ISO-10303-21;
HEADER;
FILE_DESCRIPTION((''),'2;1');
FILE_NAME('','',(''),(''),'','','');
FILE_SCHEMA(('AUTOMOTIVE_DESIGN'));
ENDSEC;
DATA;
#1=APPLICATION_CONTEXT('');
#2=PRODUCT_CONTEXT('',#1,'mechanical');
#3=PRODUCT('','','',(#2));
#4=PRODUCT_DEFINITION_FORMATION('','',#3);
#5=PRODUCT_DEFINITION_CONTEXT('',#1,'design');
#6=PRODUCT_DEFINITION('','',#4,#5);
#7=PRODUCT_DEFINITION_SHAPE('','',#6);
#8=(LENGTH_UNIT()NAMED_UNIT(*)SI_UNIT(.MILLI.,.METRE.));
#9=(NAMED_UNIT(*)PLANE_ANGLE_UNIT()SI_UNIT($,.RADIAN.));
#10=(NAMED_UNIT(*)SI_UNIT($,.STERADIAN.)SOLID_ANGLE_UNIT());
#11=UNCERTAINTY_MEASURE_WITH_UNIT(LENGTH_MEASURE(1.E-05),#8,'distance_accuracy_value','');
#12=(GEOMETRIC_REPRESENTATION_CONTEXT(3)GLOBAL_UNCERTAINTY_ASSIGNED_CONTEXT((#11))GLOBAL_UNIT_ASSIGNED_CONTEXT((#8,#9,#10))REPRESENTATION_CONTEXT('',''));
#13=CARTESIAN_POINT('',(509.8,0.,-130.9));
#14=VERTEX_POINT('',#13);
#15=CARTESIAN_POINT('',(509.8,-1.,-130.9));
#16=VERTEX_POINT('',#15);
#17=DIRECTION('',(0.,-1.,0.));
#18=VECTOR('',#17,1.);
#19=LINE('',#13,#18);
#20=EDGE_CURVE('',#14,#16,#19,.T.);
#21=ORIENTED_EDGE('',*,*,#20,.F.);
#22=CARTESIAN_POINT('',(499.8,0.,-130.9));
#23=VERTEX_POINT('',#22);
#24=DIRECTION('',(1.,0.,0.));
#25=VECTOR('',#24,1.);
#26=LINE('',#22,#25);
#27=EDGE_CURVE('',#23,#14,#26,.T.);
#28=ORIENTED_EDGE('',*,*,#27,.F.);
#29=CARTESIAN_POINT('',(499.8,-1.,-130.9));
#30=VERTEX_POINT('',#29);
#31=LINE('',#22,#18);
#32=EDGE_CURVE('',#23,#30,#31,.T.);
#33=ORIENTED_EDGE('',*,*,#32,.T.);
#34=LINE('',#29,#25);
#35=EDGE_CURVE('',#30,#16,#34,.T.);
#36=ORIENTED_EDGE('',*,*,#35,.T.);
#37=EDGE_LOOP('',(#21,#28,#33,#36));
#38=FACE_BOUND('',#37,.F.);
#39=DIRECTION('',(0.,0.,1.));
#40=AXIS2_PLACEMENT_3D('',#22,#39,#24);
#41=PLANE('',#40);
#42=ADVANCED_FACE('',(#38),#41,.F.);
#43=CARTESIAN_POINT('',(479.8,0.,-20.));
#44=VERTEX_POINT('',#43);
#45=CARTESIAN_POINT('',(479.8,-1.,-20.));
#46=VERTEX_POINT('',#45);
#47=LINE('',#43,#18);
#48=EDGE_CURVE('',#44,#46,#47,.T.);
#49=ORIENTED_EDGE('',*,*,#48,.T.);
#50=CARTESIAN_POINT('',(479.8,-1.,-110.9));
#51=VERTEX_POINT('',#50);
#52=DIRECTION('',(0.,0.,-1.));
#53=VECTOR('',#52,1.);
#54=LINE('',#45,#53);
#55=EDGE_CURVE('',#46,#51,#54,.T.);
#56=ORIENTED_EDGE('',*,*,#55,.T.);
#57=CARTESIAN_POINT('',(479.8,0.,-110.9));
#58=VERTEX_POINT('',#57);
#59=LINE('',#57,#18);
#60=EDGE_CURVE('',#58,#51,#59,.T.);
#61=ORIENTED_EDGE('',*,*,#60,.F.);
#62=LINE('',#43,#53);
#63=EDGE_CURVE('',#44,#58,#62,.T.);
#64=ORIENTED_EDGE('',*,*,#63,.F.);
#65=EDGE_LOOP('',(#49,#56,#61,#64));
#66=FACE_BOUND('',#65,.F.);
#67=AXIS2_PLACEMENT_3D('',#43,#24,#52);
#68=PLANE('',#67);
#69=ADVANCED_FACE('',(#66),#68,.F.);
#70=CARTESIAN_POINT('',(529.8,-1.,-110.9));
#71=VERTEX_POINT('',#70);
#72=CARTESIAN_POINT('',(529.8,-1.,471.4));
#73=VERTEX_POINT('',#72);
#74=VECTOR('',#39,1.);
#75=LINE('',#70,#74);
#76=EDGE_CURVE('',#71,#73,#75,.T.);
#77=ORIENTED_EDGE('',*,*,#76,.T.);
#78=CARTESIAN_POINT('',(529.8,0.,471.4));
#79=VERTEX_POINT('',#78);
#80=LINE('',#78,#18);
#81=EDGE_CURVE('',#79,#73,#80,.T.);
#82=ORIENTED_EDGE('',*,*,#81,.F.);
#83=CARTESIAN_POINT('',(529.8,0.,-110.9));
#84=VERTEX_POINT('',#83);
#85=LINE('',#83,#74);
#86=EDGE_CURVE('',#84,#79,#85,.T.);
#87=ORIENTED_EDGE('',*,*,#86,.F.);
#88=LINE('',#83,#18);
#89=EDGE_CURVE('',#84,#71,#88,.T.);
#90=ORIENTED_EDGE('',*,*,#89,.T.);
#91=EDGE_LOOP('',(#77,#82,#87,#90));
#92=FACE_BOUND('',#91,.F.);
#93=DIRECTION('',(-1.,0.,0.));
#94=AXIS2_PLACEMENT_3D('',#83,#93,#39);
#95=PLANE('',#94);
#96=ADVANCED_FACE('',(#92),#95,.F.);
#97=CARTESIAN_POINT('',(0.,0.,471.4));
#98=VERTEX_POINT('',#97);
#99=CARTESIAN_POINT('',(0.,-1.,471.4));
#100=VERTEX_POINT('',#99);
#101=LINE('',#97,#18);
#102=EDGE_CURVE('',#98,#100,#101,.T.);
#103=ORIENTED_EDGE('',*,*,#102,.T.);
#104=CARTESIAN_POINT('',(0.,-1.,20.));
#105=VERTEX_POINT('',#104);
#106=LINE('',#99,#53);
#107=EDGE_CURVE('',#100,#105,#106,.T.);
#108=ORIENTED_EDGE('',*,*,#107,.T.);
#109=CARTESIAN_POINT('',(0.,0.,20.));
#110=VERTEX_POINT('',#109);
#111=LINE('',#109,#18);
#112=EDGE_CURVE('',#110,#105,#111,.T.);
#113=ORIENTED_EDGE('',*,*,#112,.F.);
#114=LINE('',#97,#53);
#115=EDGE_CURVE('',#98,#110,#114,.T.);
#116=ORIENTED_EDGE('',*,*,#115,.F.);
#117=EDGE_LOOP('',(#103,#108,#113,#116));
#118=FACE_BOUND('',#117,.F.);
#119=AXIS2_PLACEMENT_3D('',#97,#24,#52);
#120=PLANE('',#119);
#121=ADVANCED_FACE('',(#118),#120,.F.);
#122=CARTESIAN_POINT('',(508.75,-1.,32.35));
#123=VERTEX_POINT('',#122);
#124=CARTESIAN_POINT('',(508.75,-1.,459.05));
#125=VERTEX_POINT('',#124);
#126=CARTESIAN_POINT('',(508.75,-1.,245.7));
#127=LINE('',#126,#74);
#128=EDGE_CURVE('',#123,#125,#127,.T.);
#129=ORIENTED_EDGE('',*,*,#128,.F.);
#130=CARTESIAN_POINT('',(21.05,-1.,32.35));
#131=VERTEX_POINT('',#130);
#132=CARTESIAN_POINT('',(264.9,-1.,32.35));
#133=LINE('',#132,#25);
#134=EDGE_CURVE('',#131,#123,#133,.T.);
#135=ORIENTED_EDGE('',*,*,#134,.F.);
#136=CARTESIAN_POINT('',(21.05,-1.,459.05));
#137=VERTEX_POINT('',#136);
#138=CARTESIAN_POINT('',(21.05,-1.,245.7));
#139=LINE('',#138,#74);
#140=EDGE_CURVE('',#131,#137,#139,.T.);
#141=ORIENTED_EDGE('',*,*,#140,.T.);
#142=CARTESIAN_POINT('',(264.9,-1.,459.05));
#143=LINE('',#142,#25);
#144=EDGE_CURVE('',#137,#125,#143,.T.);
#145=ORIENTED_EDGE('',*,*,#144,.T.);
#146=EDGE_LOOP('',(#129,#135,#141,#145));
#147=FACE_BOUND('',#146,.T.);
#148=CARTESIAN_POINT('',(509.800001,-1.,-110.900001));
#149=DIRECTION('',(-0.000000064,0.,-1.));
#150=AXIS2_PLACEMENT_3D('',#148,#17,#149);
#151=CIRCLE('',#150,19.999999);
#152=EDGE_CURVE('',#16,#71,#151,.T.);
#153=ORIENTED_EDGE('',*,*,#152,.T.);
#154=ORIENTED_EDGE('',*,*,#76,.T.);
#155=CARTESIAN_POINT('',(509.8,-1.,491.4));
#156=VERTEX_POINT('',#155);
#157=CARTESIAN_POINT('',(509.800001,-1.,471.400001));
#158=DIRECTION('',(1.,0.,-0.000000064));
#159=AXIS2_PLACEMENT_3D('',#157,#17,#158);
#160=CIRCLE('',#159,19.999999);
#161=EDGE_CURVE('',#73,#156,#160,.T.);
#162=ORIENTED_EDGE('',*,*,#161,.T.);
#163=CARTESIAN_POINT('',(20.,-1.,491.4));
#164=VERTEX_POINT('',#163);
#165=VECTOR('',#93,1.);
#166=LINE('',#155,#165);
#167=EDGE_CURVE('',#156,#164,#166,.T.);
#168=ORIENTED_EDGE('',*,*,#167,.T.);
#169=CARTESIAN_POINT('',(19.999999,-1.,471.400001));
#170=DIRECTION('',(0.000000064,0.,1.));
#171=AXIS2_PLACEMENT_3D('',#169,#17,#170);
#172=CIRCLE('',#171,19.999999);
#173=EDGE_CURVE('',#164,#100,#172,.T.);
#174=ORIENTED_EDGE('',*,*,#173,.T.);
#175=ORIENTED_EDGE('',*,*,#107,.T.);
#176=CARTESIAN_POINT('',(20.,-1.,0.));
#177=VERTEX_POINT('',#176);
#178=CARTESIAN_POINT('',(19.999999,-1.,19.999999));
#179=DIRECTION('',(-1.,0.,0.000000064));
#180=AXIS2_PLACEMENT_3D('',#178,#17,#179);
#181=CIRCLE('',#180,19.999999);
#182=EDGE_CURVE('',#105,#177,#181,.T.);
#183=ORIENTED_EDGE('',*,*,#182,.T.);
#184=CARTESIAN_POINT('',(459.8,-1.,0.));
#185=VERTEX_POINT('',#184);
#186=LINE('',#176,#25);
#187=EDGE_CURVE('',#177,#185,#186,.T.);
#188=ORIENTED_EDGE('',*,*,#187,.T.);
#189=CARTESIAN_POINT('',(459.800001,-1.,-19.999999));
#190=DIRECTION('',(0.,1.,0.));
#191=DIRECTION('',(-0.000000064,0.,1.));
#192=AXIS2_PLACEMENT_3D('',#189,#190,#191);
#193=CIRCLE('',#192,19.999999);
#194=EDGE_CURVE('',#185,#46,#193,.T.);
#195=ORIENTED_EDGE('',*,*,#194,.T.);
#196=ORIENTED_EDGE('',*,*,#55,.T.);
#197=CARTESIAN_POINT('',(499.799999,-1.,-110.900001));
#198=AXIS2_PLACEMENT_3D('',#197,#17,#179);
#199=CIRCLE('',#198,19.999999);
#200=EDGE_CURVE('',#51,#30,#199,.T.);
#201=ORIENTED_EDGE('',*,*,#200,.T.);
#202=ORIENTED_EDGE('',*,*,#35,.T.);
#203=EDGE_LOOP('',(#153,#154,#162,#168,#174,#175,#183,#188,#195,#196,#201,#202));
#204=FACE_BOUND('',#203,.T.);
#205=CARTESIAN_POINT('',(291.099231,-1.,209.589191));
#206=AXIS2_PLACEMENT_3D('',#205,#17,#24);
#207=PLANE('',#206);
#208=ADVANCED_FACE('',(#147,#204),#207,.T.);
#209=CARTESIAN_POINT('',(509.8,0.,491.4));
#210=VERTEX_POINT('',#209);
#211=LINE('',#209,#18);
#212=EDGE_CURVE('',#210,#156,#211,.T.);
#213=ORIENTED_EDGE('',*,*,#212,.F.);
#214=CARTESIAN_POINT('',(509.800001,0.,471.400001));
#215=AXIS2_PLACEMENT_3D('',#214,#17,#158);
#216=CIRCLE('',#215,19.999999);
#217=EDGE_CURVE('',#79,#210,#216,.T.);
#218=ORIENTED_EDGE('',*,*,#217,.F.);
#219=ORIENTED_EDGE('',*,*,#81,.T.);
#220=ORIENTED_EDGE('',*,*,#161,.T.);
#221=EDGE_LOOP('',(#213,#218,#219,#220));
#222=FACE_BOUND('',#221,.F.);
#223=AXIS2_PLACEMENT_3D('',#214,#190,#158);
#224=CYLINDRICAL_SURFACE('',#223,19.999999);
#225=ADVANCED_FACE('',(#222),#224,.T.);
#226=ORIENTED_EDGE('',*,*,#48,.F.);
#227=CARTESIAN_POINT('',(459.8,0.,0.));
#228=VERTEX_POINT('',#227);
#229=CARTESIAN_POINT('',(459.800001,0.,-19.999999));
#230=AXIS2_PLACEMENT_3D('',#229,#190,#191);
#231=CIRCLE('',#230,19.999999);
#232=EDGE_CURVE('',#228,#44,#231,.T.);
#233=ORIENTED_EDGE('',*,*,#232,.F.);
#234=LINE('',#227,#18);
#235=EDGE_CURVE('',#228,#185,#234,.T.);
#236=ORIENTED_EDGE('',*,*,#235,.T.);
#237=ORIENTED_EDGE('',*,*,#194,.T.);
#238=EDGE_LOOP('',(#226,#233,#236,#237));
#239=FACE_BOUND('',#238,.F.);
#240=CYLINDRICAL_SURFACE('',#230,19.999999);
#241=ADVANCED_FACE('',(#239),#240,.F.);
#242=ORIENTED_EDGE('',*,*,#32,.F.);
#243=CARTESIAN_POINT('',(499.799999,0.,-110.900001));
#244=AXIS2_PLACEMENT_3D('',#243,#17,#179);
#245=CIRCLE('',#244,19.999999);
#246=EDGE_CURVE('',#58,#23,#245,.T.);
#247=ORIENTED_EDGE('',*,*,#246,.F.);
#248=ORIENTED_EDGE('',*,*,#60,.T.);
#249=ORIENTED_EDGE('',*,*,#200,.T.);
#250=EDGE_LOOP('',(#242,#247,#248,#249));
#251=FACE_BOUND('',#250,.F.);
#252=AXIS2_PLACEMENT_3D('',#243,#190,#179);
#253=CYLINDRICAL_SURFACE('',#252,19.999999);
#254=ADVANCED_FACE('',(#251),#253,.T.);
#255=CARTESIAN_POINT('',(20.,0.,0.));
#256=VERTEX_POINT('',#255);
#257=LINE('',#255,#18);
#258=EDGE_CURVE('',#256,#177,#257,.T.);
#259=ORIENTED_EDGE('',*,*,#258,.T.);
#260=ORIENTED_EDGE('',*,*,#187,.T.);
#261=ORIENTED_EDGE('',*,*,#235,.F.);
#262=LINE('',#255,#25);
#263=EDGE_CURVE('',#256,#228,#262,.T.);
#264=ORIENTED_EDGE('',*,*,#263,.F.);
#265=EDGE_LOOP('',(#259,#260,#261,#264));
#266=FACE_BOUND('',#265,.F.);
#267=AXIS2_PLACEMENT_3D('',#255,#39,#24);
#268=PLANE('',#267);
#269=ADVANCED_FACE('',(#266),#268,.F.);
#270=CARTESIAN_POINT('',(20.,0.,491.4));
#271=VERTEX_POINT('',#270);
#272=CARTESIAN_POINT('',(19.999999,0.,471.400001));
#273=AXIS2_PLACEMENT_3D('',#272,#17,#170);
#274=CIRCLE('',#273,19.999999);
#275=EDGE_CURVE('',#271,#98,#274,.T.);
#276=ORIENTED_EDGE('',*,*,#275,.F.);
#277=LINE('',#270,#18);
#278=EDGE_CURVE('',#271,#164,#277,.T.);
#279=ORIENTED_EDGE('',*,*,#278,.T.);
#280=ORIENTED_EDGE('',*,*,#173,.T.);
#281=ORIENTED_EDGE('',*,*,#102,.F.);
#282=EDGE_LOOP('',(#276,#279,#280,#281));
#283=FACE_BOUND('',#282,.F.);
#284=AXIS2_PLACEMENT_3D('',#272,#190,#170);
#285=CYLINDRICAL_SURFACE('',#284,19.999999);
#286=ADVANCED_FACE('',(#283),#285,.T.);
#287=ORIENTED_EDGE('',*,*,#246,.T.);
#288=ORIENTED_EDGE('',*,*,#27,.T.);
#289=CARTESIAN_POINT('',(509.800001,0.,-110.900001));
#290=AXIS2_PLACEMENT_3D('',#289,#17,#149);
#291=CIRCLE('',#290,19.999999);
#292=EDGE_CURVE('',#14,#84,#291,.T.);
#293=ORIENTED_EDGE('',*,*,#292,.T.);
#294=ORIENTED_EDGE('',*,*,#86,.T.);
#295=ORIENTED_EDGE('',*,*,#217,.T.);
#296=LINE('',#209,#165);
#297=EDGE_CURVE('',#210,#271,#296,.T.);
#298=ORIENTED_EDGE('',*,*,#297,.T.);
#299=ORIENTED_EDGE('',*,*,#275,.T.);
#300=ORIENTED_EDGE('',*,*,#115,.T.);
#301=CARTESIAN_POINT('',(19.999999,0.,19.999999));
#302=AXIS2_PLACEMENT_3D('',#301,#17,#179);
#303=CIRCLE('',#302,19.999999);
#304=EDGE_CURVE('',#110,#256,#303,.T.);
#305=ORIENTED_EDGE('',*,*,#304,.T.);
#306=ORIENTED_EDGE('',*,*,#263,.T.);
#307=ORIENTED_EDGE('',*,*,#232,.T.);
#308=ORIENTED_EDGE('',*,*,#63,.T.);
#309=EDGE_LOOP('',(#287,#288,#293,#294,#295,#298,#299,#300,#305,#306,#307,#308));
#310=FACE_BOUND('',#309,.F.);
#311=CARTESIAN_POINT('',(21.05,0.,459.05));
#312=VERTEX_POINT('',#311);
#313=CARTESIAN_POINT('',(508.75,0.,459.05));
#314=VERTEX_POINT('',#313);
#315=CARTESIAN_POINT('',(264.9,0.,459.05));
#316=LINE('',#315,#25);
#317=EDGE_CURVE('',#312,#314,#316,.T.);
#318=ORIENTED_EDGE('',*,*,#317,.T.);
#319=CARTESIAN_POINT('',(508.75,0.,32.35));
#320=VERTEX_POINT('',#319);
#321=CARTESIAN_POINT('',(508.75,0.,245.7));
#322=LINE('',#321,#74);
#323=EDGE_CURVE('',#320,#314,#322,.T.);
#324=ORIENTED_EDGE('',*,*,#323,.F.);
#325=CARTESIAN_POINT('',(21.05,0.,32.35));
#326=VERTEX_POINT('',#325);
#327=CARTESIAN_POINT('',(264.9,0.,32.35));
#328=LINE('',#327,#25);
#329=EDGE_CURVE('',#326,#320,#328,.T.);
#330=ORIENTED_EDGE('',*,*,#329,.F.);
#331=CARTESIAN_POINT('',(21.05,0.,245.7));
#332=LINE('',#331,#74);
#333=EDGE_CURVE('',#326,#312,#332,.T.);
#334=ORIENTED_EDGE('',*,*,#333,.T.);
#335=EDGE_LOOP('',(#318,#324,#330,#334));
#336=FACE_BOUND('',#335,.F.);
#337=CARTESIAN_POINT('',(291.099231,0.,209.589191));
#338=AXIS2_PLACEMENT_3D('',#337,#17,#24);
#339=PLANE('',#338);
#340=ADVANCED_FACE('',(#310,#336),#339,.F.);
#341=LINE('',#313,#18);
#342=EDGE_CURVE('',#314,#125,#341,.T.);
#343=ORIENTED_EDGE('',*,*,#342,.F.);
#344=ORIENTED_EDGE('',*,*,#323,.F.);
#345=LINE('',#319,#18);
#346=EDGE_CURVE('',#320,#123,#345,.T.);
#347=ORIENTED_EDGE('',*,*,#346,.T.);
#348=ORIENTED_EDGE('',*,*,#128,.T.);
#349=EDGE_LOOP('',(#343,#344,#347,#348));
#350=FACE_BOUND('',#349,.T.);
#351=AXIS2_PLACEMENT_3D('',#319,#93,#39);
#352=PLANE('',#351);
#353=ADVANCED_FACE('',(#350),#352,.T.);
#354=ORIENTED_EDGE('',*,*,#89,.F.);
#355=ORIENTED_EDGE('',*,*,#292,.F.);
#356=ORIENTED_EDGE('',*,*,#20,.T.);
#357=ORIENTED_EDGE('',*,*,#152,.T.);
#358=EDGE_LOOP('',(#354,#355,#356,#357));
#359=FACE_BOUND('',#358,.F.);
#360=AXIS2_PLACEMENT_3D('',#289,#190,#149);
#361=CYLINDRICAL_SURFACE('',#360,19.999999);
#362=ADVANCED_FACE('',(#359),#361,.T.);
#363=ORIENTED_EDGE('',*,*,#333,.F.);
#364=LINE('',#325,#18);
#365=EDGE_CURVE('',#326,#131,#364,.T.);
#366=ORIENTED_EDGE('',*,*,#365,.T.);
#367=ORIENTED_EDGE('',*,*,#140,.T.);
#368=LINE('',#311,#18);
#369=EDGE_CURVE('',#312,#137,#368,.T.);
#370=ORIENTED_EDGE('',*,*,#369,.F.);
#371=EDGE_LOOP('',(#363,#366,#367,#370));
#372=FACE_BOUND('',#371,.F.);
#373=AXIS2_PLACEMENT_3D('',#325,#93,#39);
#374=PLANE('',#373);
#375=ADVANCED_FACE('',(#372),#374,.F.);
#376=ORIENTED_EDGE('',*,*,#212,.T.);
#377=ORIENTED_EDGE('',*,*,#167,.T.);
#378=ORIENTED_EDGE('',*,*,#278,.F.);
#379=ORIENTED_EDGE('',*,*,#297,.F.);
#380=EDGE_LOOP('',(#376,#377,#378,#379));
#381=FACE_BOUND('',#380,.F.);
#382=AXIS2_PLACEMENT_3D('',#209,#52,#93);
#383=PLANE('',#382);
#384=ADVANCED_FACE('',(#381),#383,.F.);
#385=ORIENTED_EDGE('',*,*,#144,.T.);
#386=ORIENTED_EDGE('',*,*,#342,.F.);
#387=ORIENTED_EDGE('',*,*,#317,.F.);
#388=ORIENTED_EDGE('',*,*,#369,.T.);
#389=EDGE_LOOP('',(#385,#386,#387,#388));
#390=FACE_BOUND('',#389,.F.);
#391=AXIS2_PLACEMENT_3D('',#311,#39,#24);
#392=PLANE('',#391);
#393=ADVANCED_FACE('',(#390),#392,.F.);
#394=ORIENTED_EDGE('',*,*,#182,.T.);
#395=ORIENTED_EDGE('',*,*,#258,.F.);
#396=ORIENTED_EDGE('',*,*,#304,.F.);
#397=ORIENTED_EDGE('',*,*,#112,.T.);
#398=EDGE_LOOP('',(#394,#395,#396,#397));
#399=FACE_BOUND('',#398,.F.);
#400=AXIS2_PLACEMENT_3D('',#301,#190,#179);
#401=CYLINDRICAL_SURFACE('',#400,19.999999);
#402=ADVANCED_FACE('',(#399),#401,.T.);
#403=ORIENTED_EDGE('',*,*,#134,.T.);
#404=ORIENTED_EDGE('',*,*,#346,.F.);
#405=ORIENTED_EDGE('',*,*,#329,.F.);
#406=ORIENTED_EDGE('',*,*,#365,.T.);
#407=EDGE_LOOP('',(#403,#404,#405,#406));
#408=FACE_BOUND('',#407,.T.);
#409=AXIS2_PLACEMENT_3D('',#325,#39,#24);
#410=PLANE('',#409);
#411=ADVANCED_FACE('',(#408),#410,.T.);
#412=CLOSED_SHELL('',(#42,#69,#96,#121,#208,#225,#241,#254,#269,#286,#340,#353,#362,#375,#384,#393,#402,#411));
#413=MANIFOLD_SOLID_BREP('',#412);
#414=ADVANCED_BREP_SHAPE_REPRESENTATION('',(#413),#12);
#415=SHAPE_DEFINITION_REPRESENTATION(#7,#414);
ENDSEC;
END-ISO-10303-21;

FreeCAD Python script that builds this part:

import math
import FreeCAD as App
import Part
import Sketcher
Q = App.Units.Quantity


def add_polygon(sketch, points):
    """Adds a closed chain of lines whose ends are joined by coincident constraints."""
    first, n = sketch.GeometryCount, len(points)
    for a, b in zip(points, points[1:] + points[:1]):
        sketch.addGeometry(Part.LineSegment(App.Vector(*a, 0), App.Vector(*b, 0)), False)
    for i in range(n):
        sketch.addConstraint(Sketcher.Constraint("Coincident", first + i, 2, first + (i + 1) % n, 1))

doc = App.newDocument("Part")
body = doc.addObject("PartDesign::Body", "Body")

# Sketch on XZ plane
sketch1 = body.newObject("Sketcher::SketchObject", "Sketch")
sketch1.AttachmentSupport = (doc.getObject("XZ_Plane"), [""])
sketch1.MapMode = "FlatFace"
sketch1.addGeometry(Part.ArcOfCircle(Part.Circle(App.Vector(19.999999, 19.999999, 0), App.Vector(0, 0, 1), 19.999999), math.radians(179.999996), math.radians(270.000004)), False)  # 0
sketch1.addGeometry(Part.LineSegment(App.Vector(20, 0, 0), App.Vector(459.8, 0, 0)), False)  # 1
sketch1.addGeometry(Part.ArcOfCircle(Part.Circle(App.Vector(459.800001, -19.999999, 0), App.Vector(0, 0, 1), 19.999999), math.radians(-0.000004), math.radians(90.000004)), False)  # 2
sketch1.addGeometry(Part.LineSegment(App.Vector(479.8, -20, 0), App.Vector(479.8, -110.9, 0)), False)  # 3
sketch1.addGeometry(Part.ArcOfCircle(Part.Circle(App.Vector(499.799999, -110.900001, 0), App.Vector(0, 0, 1), 19.999999), math.radians(179.999996), math.radians(270.000004)), False)  # 4
sketch1.addGeometry(Part.LineSegment(App.Vector(499.8, -130.9, 0), App.Vector(509.8, -130.9, 0)), False)  # 5
sketch1.addGeometry(Part.ArcOfCircle(Part.Circle(App.Vector(509.800001, -110.900001, 0), App.Vector(0, 0, 1), 19.999999), math.radians(-90.000004), math.radians(0.000004)), False)  # 6
sketch1.addGeometry(Part.LineSegment(App.Vector(529.8, -110.9, 0), App.Vector(529.8, 471.4, 0)), False)  # 7
sketch1.addGeometry(Part.ArcOfCircle(Part.Circle(App.Vector(509.800001, 471.400001, 0), App.Vector(0, 0, 1), 19.999999), math.radians(-0.000004), math.radians(90.000004)), False)  # 8
sketch1.addGeometry(Part.LineSegment(App.Vector(509.8, 491.4, 0), App.Vector(20, 491.4, 0)), False)  # 9
sketch1.addGeometry(Part.ArcOfCircle(Part.Circle(App.Vector(19.999999, 471.400001, 0), App.Vector(0, 0, 1), 19.999999), math.radians(89.999996), math.radians(180.000004)), False)  # 10
sketch1.addGeometry(Part.LineSegment(App.Vector(0, 471.4, 0), App.Vector(0, 20, 0)), False)  # 11
add_polygon(sketch1, [(508.75, 32.35), (21.05, 32.35), (21.05, 459.05), (508.75, 459.05)])  # lines 12-15
sketch1.addConstraint([
    Sketcher.Constraint("Tangent", 0, 2, 1, 1),
    Sketcher.Constraint("Tangent", 1, 2, 2, 2),
    Sketcher.Constraint("Tangent", 2, 1, 3, 1),
    Sketcher.Constraint("Tangent", 3, 2, 4, 1),
    Sketcher.Constraint("Tangent", 4, 2, 5, 1),
    Sketcher.Constraint("Tangent", 5, 2, 6, 1),
    Sketcher.Constraint("Tangent", 6, 2, 7, 1),
    Sketcher.Constraint("Tangent", 7, 2, 8, 1),
    Sketcher.Constraint("Tangent", 8, 2, 9, 1),
    Sketcher.Constraint("Tangent", 9, 2, 10, 1),
    Sketcher.Constraint("Tangent", 10, 2, 11, 1),
    Sketcher.Constraint("Tangent", 11, 2, 0, 1),
    Sketcher.Constraint("Horizontal", 1),
    Sketcher.Constraint("Vertical", 3),
    Sketcher.Constraint("Horizontal", 5),
    Sketcher.Constraint("Vertical", 7),
    Sketcher.Constraint("Horizontal", 9),
    Sketcher.Constraint("Vertical", 11),
    Sketcher.Constraint("Horizontal", 12),
    Sketcher.Constraint("Vertical", 13),
    Sketcher.Constraint("Horizontal", 14),
    Sketcher.Constraint("Vertical", 15),
    Sketcher.Constraint("Equal", 0, 2),
    Sketcher.Constraint("Equal", 2, 4),
    Sketcher.Constraint("Equal", 4, 6),
    Sketcher.Constraint("Equal", 6, 8),
    Sketcher.Constraint("Equal", 8, 10),
    Sketcher.Constraint("PointOnObject", 0, 2, -1),
    Sketcher.Constraint("PointOnObject", 10, 2, -2),
    Sketcher.Constraint("Radius", 0, Q("19.999999 mm")),
    Sketcher.Constraint("DistanceX", 5, 1, 5, 2, Q("10 mm")),
    Sketcher.Constraint("DistanceX", 1, 1, 1, 2, Q("439.8 mm")),
    Sketcher.Constraint("DistanceX", 12, 2, 12, 1, Q("487.7 mm")),
    Sketcher.Constraint("DistanceY", 3, 2, 3, 1, Q("90.9 mm")),
    Sketcher.Constraint("DistanceY", 7, 1, 7, 2, Q("582.3 mm")),
    Sketcher.Constraint("DistanceY", 13, 1, 13, 2, Q("426.7 mm")),
    Sketcher.Constraint("DistanceX", -1, 1, 12, 2, Q("21.05 mm")),
    Sketcher.Constraint("DistanceY", -1, 1, 12, 2, Q("32.35 mm")),
])
pad1 = body.newObject("PartDesign::Pad", "Pad")
pad1.Profile = sketch1
pad1.Length = 1

doc.recompute()
